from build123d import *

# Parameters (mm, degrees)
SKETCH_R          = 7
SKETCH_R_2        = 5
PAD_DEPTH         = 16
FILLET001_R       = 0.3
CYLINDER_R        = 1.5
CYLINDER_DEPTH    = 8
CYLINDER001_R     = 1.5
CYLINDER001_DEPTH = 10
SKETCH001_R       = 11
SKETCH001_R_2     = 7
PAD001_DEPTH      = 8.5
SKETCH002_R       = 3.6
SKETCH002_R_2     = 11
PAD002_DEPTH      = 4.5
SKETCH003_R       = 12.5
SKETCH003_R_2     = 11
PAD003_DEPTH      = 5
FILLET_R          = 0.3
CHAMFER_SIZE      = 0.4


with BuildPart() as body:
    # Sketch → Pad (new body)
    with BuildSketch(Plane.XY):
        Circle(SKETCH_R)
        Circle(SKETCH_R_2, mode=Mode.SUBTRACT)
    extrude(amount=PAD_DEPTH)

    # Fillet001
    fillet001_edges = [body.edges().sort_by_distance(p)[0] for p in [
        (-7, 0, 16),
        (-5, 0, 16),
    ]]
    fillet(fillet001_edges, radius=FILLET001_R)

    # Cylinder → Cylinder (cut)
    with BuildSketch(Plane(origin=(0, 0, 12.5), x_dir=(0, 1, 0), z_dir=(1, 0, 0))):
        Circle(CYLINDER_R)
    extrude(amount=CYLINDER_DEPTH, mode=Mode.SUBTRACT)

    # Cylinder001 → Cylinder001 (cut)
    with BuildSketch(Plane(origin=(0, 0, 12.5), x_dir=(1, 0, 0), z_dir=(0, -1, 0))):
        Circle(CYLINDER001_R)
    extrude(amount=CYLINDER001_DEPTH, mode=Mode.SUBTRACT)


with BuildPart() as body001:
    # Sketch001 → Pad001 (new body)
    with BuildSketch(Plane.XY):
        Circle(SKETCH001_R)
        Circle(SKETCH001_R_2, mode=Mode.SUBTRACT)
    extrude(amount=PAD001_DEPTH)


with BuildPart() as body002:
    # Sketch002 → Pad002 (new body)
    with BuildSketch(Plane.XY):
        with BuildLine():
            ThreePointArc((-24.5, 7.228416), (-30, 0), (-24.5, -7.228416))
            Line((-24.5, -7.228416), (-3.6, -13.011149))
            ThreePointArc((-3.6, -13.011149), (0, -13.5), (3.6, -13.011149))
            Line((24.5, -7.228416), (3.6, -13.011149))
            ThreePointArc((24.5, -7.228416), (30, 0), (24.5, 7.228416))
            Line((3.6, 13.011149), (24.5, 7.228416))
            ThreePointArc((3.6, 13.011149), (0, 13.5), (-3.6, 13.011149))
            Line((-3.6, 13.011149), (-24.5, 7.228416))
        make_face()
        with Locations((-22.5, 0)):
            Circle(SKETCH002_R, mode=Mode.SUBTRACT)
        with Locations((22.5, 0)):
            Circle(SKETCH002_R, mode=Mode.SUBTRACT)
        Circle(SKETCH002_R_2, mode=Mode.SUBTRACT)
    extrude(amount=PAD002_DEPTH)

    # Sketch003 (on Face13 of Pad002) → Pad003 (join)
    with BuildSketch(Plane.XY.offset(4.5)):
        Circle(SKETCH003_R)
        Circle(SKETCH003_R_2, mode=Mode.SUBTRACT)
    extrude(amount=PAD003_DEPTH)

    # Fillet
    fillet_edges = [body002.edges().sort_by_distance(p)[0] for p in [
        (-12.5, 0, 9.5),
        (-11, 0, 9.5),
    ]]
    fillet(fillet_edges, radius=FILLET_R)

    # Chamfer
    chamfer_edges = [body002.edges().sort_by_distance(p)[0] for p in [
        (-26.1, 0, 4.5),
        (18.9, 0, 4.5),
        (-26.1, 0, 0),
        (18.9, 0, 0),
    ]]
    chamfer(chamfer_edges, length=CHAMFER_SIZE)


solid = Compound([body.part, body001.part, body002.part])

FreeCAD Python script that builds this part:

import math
import FreeCAD as App
import Part
import Sketcher
from FreeCAD import Vector
Q = App.Units.Quantity


def edges_at(feature, points):
    """Names of the edges that pass closest to the given points."""
    edges = feature.Shape.Edges
    near = lambda p: min(range(len(edges)), key=lambda i: edges[i].distToShape(Part.Vertex(*p))[0])
    return sorted({f"Edge{near(p) + 1}" for p in points})

doc = App.newDocument("Part")
body = doc.addObject("PartDesign::Body", "Body")

# Sketch on XY plane
sketch1 = doc.addObject("Sketcher::SketchObject", "Sketch")
body.addObject(sketch1)
sketch1.AttachmentSupport = (doc.XY_Plane, [""])
sketch1.MapMode = "FlatFace"
sketch1.addGeometry([
    Part.Circle(Vector(0, 0, 0), Vector(0, 0, 1), 7),
    Part.Circle(Vector(0, 0, 0), Vector(0, 0, 1), 5),
], False)
sketch1.addConstraint([
    Sketcher.Constraint("Coincident", 0, 3, -1, 1),
    Sketcher.Constraint("Coincident", 1, 3, -1, 1),
    Sketcher.Constraint("Diameter", 0, Q("14 mm")),
    Sketcher.Constraint("Diameter", 1, Q("10 mm")),
])
pad1 = doc.addObject("PartDesign::Pad", "Pad")
body.addObject(pad1)
pad1.Profile = sketch1
pad1.Length = 16
doc.recompute()

fillet = doc.addObject("PartDesign::Fillet", "Fillet")
body.addObject(fillet)
fillet.Base = (pad1, edges_at(pad1, [(-7, 0, 16), (-5, 0, 16)]))
fillet.Radius = 0.3

# Sketch on YZ plane
sketch2 = doc.addObject("Sketcher::SketchObject", "Sketch001")
body.addObject(sketch2)
sketch2.AttachmentSupport = (doc.YZ_Plane, [""])
sketch2.MapMode = "FlatFace"
sketch2.addGeometry(Part.Circle(Vector(0, 12.5, 0), Vector(0, 0, 1), 1.5), False)
sketch2.addConstraint([
    Sketcher.Constraint("PointOnObject", 0, 3, -2),
    Sketcher.Constraint("Diameter", 0, Q("3 mm")),
    Sketcher.Constraint("DistanceY", -1, 1, 0, 3, Q("12.5 mm")),
])
pocket1 = doc.addObject("PartDesign::Pocket", "Pocket")
body.addObject(pocket1)
pocket1.Profile = sketch2
pocket1.Length = 8
pocket1.Reversed = True

# Sketch on XZ plane
sketch3 = doc.addObject("Sketcher::SketchObject", "Sketch002")
body.addObject(sketch3)
sketch3.AttachmentSupport = (doc.XZ_Plane, [""])
sketch3.MapMode = "FlatFace"
sketch3.addGeometry(Part.Circle(Vector(0, 12.5, 0), Vector(0, 0, 1), 1.5), False)
sketch3.addConstraint([
    Sketcher.Constraint("PointOnObject", 0, 3, -2),
    Sketcher.Constraint("Diameter", 0, Q("3 mm")),
    Sketcher.Constraint("DistanceY", -1, 1, 0, 3, Q("12.5 mm")),
])
pocket2 = doc.addObject("PartDesign::Pocket", "Pocket001")
body.addObject(pocket2)
pocket2.Profile = sketch3
pocket2.Length = 10
pocket2.Reversed = True
body2 = doc.addObject("PartDesign::Body", "Body001")

# Sketch on XY plane
sketch4 = doc.addObject("Sketcher::SketchObject", "Sketch003")
body2.addObject(sketch4)
sketch4.AttachmentSupport = (doc.getObject("XY_Plane001"), [""])
sketch4.MapMode = "FlatFace"
sketch4.addGeometry([
    Part.Circle(Vector(0, 0, 0), Vector(0, 0, 1), 11),
    Part.Circle(Vector(0, 0, 0), Vector(0, 0, 1), 7),
], False)
sketch4.addConstraint([
    Sketcher.Constraint("Coincident", 0, 3, -1, 1),
    Sketcher.Constraint("Coincident", 1, 3, -1, 1),
    Sketcher.Constraint("Diameter", 0, Q("22 mm")),
    Sketcher.Constraint("Diameter", 1, Q("14 mm")),
])
pad2 = doc.addObject("PartDesign::Pad", "Pad001")
body2.addObject(pad2)
pad2.Profile = sketch4
pad2.Length = 8.5
body3 = doc.addObject("PartDesign::Body", "Body002")

# Sketch on XY plane
sketch5 = doc.addObject("Sketcher::SketchObject", "Sketch004")
body3.addObject(sketch5)
sketch5.AttachmentSupport = (doc.getObject("XY_Plane002"), [""])
sketch5.MapMode = "FlatFace"
sketch5.addGeometry([
    Part.ArcOfCircle(Part.Circle(Vector(-22.5, 0, 0), Vector(0, 0, 1), 7.5), math.radians(105.466009), math.radians(254.533991)),  # 0
    Part.LineSegment(Vector(-24.5, -7.228416, 0), Vector(-3.6, -13.011149, 0)),  # 1
    Part.ArcOfCircle(Part.Circle(Vector(0, -0.000002, 0), Vector(0, 0, 1), 13.499998), math.radians(-105.466012), math.radians(-74.533988)),  # 2
    Part.LineSegment(Vector(3.6, -13.011149, 0), Vector(24.5, -7.228416, 0)),  # 3
    Part.ArcOfCircle(Part.Circle(Vector(22.5, 0, 0), Vector(0, 0, 1), 7.5), math.radians(-74.533991), math.radians(74.533991)),  # 4
    Part.LineSegment(Vector(24.5, 7.228416, 0), Vector(3.6, 13.011149, 0)),  # 5
    Part.ArcOfCircle(Part.Circle(Vector(0, 0.000002, 0), Vector(0, 0, 1), 13.499998), math.radians(74.533988), math.radians(105.466012)),  # 6
    Part.LineSegment(Vector(-3.6, 13.011149, 0), Vector(-24.5, 7.228416, 0)),  # 7
    Part.Circle(Vector(-22.5, 0, 0), Vector(0, 0, 1), 3.6),  # 8
    Part.Circle(Vector(0, 0, 0), Vector(0, 0, 1), 11),  # 9
    Part.Circle(Vector(22.5, 0, 0), Vector(0, 0, 1), 3.6),  # 10
], False)
sketch5.addConstraint([
    Sketcher.Constraint("Tangent", 0, 2, 1, 1),
    Sketcher.Constraint("Tangent", 1, 2, 2, 1),
    Sketcher.Constraint("Tangent", 2, 2, 3, 1),
    Sketcher.Constraint("Tangent", 3, 2, 4, 1),
    Sketcher.Constraint("Tangent", 4, 2, 5, 1),
    Sketcher.Constraint("Tangent", 5, 2, 6, 1),
    Sketcher.Constraint("Tangent", 6, 2, 7, 1),
    Sketcher.Constraint("Tangent", 7, 2, 0, 1),
    Sketcher.Constraint("Coincident", 2, 3, -1, 1),
    Sketcher.Constraint("Coincident", 6, 3, -1, 1),
    Sketcher.Constraint("Coincident", 9, 3, -1, 1),
    Sketcher.Constraint("Coincident", 8, 3, 0, 3),
    Sketcher.Constraint("Coincident", 10, 3, 4, 3),
    Sketcher.Constraint("Equal", 0, 4),
    Sketcher.Constraint("Equal", 2, 6),
    Sketcher.Constraint("Equal", 8, 10),
    Sketcher.Constraint("Symmetric", 0, 3, 4, 3, -1, 1),
    Sketcher.Constraint("PointOnObject", 0, 3, -1),
    Sketcher.Constraint("Diameter", 9, Q("22 mm")),
    Sketcher.Constraint("Diameter", 8, Q("7.2 mm")),
    Sketcher.Constraint("Radius", 0, Q("7.5 mm")),
    Sketcher.Constraint("Radius", 2, Q("13.499998 mm")),
    Sketcher.Constraint("DistanceX", 0, 3, 4, 3, Q("45 mm")),
])
pad3 = doc.addObject("PartDesign::Pad", "Pad002")
body3.addObject(pad3)
pad3.Profile = sketch5
pad3.Length = 4.5

# Sketch on XY plane
sketch6 = doc.addObject("Sketcher::SketchObject", "Sketch005")
body3.addObject(sketch6)
sketch6.AttachmentSupport = (doc.getObject("XY_Plane002"), [""])
sketch6.MapMode = "FlatFace"
sketch6.AttachmentOffset = App.Placement(Vector(0, 0, 4.5), App.Rotation())
sketch6.addGeometry([
    Part.Circle(Vector(0, 0, 0), Vector(0, 0, 1), 12.5),
    Part.Circle(Vector(0, 0, 0), Vector(0, 0, 1), 11),
], False)
sketch6.addConstraint([
    Sketcher.Constraint("Coincident", 0, 3, -1, 1),
    Sketcher.Constraint("Coincident", 1, 3, -1, 1),
    Sketcher.Constraint("Diameter", 0, Q("25 mm")),
    Sketcher.Constraint("Diameter", 1, Q("22 mm")),
])
pad4 = doc.addObject("PartDesign::Pad", "Pad003")
body3.addObject(pad4)
pad4.Profile = sketch6
pad4.Length = 5
doc.recompute()

fillet2 = doc.addObject("PartDesign::Fillet", "Fillet001")
body3.addObject(fillet2)
fillet2.Base = (pad4, edges_at(pad4, [(-12.5, 0, 9.5), (-11, 0, 9.5)]))
fillet2.Radius = 0.3
doc.recompute()

chamfer = doc.addObject("PartDesign::Chamfer", "Chamfer")
body3.addObject(chamfer)
chamfer.Base = (fillet2, edges_at(fillet2, [
    (-26.1, 0, 4.5),
    (18.9, 0, 4.5),
    (-26.1, 0, 0),
    (18.9, 0, 0),
]))
chamfer.Size = 0.4

doc.recompute()
